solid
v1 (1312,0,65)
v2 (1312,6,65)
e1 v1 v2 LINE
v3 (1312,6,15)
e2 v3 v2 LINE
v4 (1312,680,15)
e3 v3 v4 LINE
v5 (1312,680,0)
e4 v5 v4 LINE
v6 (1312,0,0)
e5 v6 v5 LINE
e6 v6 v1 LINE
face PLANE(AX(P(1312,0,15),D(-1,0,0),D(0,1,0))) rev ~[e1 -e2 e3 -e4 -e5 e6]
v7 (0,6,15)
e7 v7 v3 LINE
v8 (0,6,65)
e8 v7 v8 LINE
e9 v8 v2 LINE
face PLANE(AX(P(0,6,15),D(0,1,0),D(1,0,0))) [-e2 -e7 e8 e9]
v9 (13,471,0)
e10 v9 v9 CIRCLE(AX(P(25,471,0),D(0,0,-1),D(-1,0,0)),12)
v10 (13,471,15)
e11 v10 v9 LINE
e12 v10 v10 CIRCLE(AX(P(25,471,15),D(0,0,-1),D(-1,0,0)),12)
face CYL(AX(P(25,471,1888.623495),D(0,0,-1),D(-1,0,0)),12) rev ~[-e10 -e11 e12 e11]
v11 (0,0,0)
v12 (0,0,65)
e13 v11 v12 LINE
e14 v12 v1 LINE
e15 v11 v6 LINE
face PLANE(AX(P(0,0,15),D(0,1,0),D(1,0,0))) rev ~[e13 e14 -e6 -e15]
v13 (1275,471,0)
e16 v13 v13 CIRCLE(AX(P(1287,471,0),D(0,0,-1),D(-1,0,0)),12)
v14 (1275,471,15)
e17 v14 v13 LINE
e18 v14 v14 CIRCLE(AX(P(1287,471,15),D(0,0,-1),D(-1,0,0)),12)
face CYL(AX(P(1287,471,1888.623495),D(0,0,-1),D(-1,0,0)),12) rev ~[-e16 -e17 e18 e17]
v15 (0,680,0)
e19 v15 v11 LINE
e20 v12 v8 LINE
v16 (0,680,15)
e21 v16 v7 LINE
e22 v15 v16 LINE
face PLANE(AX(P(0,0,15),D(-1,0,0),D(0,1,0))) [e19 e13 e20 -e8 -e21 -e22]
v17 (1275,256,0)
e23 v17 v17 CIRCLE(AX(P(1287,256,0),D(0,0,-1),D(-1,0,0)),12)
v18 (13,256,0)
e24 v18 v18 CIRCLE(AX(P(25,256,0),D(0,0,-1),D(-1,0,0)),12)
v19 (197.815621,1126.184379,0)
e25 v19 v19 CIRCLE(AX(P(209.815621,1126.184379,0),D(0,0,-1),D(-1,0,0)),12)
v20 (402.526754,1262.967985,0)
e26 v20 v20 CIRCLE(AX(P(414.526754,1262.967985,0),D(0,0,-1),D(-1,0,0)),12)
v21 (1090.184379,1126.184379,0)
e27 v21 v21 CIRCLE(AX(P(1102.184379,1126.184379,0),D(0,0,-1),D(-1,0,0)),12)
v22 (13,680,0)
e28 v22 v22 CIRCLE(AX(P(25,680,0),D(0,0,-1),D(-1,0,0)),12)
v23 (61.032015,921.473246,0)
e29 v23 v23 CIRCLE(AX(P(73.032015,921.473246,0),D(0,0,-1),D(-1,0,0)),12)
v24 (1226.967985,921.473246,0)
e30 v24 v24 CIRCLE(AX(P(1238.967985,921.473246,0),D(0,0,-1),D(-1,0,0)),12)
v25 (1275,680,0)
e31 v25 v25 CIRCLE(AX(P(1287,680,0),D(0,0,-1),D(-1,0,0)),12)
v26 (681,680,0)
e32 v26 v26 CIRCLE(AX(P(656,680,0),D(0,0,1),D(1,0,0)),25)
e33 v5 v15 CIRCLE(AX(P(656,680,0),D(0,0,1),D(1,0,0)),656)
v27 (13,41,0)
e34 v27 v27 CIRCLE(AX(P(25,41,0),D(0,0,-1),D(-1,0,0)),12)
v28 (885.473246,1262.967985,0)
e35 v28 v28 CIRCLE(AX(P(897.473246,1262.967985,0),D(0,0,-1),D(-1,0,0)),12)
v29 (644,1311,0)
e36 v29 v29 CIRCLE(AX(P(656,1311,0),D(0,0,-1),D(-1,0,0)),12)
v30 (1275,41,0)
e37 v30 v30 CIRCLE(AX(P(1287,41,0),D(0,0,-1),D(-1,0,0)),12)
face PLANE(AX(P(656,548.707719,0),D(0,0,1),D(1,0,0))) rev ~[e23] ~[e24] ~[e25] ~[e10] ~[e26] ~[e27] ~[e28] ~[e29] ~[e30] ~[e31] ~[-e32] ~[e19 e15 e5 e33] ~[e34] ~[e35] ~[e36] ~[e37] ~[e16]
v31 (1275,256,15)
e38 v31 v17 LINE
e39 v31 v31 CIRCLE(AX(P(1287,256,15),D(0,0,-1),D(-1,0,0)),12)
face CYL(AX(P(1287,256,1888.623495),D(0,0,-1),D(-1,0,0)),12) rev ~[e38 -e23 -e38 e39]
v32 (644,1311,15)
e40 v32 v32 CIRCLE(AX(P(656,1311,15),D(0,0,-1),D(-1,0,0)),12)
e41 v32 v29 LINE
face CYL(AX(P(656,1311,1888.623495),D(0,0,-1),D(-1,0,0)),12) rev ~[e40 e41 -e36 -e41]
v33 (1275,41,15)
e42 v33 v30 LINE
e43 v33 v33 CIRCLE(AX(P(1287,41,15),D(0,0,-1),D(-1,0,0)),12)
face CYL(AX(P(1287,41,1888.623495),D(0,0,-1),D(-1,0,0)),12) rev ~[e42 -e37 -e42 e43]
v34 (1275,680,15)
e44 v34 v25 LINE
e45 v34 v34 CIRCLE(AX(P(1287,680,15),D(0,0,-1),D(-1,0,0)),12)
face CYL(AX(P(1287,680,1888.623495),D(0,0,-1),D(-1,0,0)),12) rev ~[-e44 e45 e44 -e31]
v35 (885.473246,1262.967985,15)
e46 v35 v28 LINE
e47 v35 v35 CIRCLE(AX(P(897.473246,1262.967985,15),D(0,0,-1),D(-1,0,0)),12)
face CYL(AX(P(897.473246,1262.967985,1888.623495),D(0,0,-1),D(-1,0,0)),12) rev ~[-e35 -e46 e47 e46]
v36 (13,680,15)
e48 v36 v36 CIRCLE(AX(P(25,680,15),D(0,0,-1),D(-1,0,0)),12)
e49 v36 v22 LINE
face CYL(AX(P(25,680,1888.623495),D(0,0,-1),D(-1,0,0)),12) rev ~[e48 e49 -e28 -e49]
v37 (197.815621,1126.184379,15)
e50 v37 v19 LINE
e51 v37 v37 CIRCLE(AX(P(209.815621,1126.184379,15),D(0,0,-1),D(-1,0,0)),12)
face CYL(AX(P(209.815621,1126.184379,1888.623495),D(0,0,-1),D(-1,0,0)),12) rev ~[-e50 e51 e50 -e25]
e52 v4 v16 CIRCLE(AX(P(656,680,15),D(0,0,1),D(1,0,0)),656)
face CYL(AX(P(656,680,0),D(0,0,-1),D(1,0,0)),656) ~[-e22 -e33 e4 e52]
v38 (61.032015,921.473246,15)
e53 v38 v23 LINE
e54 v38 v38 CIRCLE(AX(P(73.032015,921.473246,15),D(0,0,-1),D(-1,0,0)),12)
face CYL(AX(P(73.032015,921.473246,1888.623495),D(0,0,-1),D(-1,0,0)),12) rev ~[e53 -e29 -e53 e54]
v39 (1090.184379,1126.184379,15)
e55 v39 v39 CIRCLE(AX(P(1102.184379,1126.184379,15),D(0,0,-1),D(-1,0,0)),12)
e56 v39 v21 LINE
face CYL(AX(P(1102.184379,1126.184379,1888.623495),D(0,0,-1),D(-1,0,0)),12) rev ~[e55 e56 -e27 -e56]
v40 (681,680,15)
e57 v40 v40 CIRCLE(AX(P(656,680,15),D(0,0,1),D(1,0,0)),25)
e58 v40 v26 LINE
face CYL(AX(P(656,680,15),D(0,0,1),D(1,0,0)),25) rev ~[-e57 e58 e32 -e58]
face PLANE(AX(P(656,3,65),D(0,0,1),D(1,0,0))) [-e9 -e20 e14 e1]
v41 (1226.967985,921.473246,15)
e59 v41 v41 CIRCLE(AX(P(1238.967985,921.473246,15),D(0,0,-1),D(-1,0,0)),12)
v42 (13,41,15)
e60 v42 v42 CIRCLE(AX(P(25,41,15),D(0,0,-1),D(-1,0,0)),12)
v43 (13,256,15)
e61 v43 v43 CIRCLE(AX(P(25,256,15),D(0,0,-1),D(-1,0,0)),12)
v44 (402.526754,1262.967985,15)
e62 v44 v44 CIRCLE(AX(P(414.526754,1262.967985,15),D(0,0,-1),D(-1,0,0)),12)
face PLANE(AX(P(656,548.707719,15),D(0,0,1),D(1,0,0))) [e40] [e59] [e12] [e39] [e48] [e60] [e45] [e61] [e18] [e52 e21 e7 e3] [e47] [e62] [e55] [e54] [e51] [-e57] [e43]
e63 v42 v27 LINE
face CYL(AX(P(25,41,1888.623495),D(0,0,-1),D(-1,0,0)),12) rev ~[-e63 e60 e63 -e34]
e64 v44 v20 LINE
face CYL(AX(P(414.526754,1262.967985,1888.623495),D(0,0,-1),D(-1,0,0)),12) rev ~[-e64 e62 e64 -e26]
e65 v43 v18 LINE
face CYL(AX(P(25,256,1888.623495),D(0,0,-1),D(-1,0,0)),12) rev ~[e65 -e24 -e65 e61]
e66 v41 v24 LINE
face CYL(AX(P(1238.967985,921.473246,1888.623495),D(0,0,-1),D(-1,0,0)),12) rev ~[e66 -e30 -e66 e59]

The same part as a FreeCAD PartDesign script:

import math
import FreeCAD as App
import Part
import Sketcher

V = App.Vector

doc = App.newDocument("Part")
body = doc.addObject("PartDesign::Body", "Body")

sketch1 = body.newObject("Sketcher::SketchObject", "Sketch")
sketch1.AttachmentSupport = (doc.getObject("XY_Plane"), [""])
sketch1.MapMode = "FlatFace"
sketch1.addGeometry([
    Part.LineSegment(V(0, 0, 0), V(1312, 0, 0)),
    Part.LineSegment(V(1312, 0, 0), V(1312, 680, 0)),
    Part.ArcOfCircle(Part.Circle(V(656, 680, 0), V(0, 0, 1), 656), math.radians(0), math.radians(180)),
    Part.LineSegment(V(0, 680, 0), V(0, 0, 0)),
], False)
sketch1.addConstraint([
    Sketcher.Constraint("Coincident", 0, 2, 1, 1),
    Sketcher.Constraint("Tangent", 1, 2, 2, 1),
    Sketcher.Constraint("Tangent", 2, 2, 3, 1),
    Sketcher.Constraint("Coincident", 3, 2, 0, 1),
    Sketcher.Constraint("Horizontal", 0),
    Sketcher.Constraint("Vertical", 1),
    Sketcher.Constraint("Vertical", 3),
    Sketcher.Constraint("Coincident", 3, 2, -1, 1),
    Sketcher.Constraint("Radius", 2, 656.0),
    Sketcher.Constraint("DistanceY", 1, 1, 1, 2, 680.0),
])
pad1 = body.newObject("PartDesign::Pad", "Pad")
pad1.Profile = sketch1
pad1.Length = 15

sketch2 = body.newObject("Sketcher::SketchObject", "Sketch001")
sketch2.AttachmentSupport = (doc.getObject("XY_Plane"), [""])
sketch2.MapMode = "FlatFace"
sketch2.AttachmentOffset = App.Placement(V(0, 0, 15), App.Rotation())
sketch2.addGeometry([
    Part.LineSegment(V(0, 6, 0), V(0, 0, 0)),
    Part.LineSegment(V(0, 0, 0), V(1312, 0, 0)),
    Part.LineSegment(V(1312, 0, 0), V(1312, 6, 0)),
    Part.LineSegment(V(1312, 6, 0), V(0, 6, 0)),
], False)
sketch2.addConstraint([
    Sketcher.Constraint("Coincident", 0, 2, 1, 1),
    Sketcher.Constraint("Coincident", 1, 2, 2, 1),
    Sketcher.Constraint("Coincident", 2, 2, 3, 1),
    Sketcher.Constraint("Coincident", 3, 2, 0, 1),
    Sketcher.Constraint("Vertical", 0),
    Sketcher.Constraint("Horizontal", 1),
    Sketcher.Constraint("Vertical", 2),
    Sketcher.Constraint("Horizontal", 3),
    Sketcher.Constraint("Coincident", 0, 2, -1, 1),
    Sketcher.Constraint("DistanceX", 1, 1, 1, 2, 1312.0),
    Sketcher.Constraint("DistanceY", 0, 2, 0, 1, 6.0),
])
pad2 = body.newObject("PartDesign::Pad", "Pad001")
pad2.Profile = sketch2
pad2.Length = 50

sketch3 = body.newObject("Sketcher::SketchObject", "Sketch002")
sketch3.AttachmentSupport = (doc.getObject("XY_Plane"), [""])
sketch3.MapMode = "FlatFace"
sketch3.AttachmentOffset = App.Placement(V(0, 0, 15), App.Rotation())
sketch3.addGeometry([
    Part.Circle(V(25, 680, 0), V(0, 0, 1), 12),
    Part.Circle(V(1287, 680, 0), V(0, 0, 1), 12),
    Part.Circle(V(25, 41, 0), V(0, 0, 1), 12),
    Part.Circle(V(25, 256, 0), V(0, 0, 1), 12),
    Part.Circle(V(25, 471, 0), V(0, 0, 1), 12),
    Part.Circle(V(1287, 41, 0), V(0, 0, 1), 12),
    Part.Circle(V(1287, 256, 0), V(0, 0, 1), 12),
    Part.Circle(V(1287, 471, 0), V(0, 0, 1), 12),
    Part.Circle(V(1238.967985, 921.473246, 0), V(0, 0, 1), 12),
    Part.Circle(V(1102.184379, 1126.184379, 0), V(0, 0, 1), 12),
    Part.Circle(V(897.473246, 1262.967985, 0), V(0, 0, 1), 12),
    Part.Circle(V(656, 1311, 0), V(0, 0, 1), 12),
    Part.Circle(V(414.526754, 1262.967985, 0), V(0, 0, 1), 12),
    Part.Circle(V(209.815621, 1126.184379, 0), V(0, 0, 1), 12),
    Part.Circle(V(73.032015, 921.473246, 0), V(0, 0, 1), 12),
], False)
sketch3.addConstraint([
    Sketcher.Constraint("Equal", 0, 1),
    Sketcher.Constraint("Equal", 1, 2),
    Sketcher.Constraint("Equal", 2, 3),
    Sketcher.Constraint("Equal", 3, 4),
    Sketcher.Constraint("Equal", 4, 5),
    Sketcher.Constraint("Equal", 5, 6),
    Sketcher.Constraint("Equal", 6, 7),
    Sketcher.Constraint("Equal", 7, 8),
    Sketcher.Constraint("Equal", 8, 9),
    Sketcher.Constraint("Equal", 9, 10),
    Sketcher.Constraint("Equal", 10, 11),
    Sketcher.Constraint("Equal", 11, 12),
    Sketcher.Constraint("Equal", 12, 13),
    Sketcher.Constraint("Equal", 13, 14),
    Sketcher.Constraint("Horizontal", 0, 3, 1, 3),
    Sketcher.Constraint("Horizontal", 2, 3, 5, 3),
    Sketcher.Constraint("Horizontal", 3, 3, 6, 3),
    Sketcher.Constraint("Horizontal", 4, 3, 7, 3),
    Sketcher.Constraint("Horizontal", 10, 3, 12, 3),
    Sketcher.Constraint("Horizontal", 9, 3, 13, 3),
    Sketcher.Constraint("Horizontal", 8, 3, 14, 3),
    Sketcher.Constraint("Vertical", 0, 3, 2, 3),
    Sketcher.Constraint("Vertical", 2, 3, 3, 3),
    Sketcher.Constraint("Vertical", 3, 3, 4, 3),
    Sketcher.Constraint("Vertical", 1, 3, 5, 3),
    Sketcher.Constraint("Vertical", 5, 3, 6, 3),
    Sketcher.Constraint("Vertical", 6, 3, 7, 3),
    Sketcher.Constraint("Diameter", 0, 24.0),
    Sketcher.Constraint("DistanceX", -1, 1, 0, 3, 25.0),
    Sketcher.Constraint("DistanceY", -1, 1, 0, 3, 680.0),
    Sketcher.Constraint("DistanceX", -1, 1, 1, 3, 1287.0),
    Sketcher.Constraint("DistanceY", -1, 1, 2, 3, 41.0),
    Sketcher.Constraint("DistanceY", -1, 1, 3, 3, 256.0),
    Sketcher.Constraint("DistanceY", -1, 1, 4, 3, 471.0),
    Sketcher.Constraint("DistanceX", -1, 1, 11, 3, 656.0),
    Sketcher.Constraint("DistanceY", -1, 1, 11, 3, 1311.0),
    Sketcher.Constraint("DistanceX", -1, 1, 9, 3, 1102.184379),
    Sketcher.Constraint("DistanceY", -1, 1, 9, 3, 1126.184379),
    Sketcher.Constraint("DistanceX", -1, 1, 13, 3, 209.815621),
    Sketcher.Constraint("DistanceX", 10, 3, 8, 3, 341.494739),
    Sketcher.Constraint("DistanceY", 8, 3, 10, 3, 341.494739),
    Sketcher.Constraint("DistanceX", 12, 3, 10, 3, 482.946492),
    Sketcher.Constraint("DistanceX", 14, 3, 12, 3, 341.494739),
    Sketcher.Constraint("DistanceX", -1, 1, 8, 3, 1238.967985),
    Sketcher.Constraint("DistanceY", -1, 1, 8, 3, 921.473246),
])
doc.recompute()
hole = body.newObject("PartDesign::Hole", "Hole")
hole.Profile = sketch3
hole.ThreadType = "None"
hole.Diameter = 24
hole.DepthType = "ThroughAll"

sketch4 = body.newObject("Sketcher::SketchObject", "Sketch003")
sketch4.AttachmentSupport = (doc.getObject("XY_Plane"), [""])
sketch4.MapMode = "FlatFace"
sketch4.AttachmentOffset = App.Placement(V(0, 0, 15), App.Rotation())
sketch4.addGeometry(Part.Circle(V(656, 680, 0), V(0, 0, 1), 25), False)
sketch4.addConstraint([
    Sketcher.Constraint("Diameter", 0, 50.0),
    Sketcher.Constraint("DistanceX", -1, 1, 0, 3, 656.0),
    Sketcher.Constraint("DistanceY", -1, 1, 0, 3, 680.0),
])
pocket1 = body.newObject("PartDesign::Pocket", "Pocket")
pocket1.Profile = sketch4
pocket1.Type = "ThroughAll"

doc.recompute()
